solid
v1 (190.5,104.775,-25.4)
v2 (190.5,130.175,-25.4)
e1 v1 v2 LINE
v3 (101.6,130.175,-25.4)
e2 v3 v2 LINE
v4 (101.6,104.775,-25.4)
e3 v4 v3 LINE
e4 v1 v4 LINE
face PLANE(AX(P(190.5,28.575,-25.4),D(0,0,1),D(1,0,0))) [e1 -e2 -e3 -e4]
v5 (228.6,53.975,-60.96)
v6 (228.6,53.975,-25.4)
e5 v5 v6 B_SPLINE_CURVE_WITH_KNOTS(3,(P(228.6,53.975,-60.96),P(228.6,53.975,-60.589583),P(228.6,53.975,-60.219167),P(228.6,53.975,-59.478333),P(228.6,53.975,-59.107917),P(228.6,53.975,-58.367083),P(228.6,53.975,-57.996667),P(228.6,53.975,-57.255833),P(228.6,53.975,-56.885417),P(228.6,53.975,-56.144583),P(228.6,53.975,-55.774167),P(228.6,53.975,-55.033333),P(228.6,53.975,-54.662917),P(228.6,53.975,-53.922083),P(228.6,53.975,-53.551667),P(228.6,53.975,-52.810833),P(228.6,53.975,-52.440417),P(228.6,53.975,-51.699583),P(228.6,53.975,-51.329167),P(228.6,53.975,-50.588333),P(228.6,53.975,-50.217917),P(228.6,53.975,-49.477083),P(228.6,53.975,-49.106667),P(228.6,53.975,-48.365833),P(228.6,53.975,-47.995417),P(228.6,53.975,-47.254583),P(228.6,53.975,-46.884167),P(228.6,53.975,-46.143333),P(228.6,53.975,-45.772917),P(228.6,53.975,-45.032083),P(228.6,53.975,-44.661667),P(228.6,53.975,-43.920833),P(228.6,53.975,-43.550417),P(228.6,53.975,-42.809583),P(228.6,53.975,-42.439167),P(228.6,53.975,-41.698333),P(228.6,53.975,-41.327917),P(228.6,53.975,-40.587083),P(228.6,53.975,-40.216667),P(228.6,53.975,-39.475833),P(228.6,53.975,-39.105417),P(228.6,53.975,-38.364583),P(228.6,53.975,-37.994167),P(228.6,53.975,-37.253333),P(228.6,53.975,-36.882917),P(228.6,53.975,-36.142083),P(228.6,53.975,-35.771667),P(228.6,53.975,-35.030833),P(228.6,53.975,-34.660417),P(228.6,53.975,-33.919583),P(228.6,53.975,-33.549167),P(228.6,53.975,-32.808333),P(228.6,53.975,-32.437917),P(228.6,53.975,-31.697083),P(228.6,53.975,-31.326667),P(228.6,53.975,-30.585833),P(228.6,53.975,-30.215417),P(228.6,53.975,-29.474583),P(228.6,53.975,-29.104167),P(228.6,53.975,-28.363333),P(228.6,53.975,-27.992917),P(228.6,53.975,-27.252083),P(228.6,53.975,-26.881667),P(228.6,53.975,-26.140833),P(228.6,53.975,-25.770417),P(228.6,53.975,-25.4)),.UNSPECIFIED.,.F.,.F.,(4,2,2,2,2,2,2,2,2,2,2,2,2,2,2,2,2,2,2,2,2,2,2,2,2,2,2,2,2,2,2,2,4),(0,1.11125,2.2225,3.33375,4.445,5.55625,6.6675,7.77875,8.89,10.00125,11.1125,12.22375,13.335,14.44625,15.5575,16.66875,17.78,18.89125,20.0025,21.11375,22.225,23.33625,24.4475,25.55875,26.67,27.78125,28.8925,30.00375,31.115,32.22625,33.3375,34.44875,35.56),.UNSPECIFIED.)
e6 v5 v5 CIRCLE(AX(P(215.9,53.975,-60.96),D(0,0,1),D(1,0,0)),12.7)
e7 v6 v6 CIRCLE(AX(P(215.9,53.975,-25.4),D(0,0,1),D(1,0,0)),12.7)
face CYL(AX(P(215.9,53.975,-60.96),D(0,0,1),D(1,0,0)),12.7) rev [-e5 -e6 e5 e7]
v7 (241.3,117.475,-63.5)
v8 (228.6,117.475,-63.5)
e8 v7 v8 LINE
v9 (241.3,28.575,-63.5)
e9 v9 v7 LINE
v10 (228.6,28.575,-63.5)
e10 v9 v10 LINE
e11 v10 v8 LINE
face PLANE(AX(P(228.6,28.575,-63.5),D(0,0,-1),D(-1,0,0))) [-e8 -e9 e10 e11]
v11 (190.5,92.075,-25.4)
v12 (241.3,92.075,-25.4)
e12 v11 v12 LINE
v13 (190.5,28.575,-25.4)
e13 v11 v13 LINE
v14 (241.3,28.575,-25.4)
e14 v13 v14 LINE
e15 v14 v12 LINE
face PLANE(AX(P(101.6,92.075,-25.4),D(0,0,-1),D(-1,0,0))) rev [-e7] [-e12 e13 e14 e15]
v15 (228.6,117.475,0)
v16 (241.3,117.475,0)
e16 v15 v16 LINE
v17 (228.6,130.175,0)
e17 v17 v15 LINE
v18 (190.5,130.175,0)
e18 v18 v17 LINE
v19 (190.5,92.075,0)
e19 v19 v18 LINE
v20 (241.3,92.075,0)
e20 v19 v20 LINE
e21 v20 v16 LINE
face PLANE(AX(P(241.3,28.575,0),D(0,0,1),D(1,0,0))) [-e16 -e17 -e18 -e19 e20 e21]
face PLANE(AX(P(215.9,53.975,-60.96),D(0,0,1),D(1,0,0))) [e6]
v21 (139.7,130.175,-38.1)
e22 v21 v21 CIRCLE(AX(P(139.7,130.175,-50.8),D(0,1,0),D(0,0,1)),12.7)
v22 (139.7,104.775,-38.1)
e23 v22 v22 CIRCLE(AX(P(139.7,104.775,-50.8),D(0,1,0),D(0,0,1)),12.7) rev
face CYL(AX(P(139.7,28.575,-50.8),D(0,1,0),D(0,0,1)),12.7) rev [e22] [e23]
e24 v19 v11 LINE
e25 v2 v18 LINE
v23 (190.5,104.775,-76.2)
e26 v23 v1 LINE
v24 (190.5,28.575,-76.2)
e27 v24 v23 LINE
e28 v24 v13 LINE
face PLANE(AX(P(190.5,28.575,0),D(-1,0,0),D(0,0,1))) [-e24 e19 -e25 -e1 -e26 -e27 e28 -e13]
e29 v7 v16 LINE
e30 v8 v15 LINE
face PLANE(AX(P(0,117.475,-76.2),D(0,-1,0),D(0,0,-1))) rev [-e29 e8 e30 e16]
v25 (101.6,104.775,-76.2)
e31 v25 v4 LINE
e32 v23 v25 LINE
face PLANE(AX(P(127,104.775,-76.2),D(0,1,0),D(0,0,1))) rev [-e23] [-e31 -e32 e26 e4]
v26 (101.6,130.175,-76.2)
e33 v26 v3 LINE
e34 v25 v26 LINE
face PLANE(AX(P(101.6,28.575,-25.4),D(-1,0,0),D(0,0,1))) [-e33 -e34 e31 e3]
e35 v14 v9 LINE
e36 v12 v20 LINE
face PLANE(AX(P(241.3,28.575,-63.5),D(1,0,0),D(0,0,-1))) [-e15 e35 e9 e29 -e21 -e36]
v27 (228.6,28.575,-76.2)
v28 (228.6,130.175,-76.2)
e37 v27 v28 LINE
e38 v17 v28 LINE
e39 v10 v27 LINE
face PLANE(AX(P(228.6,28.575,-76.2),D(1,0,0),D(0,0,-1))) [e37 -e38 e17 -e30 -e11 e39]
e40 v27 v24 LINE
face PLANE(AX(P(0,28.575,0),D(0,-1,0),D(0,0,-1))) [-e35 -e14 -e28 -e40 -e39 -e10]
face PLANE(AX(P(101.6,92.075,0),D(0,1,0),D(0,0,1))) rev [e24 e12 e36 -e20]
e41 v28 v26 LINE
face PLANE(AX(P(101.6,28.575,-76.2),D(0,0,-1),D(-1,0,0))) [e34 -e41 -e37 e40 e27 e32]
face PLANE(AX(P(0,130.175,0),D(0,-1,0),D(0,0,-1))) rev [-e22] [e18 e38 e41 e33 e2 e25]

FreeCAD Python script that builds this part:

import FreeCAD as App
import Part
import Sketcher
from FreeCAD import Vector
Q = App.Units.Quantity

doc = App.newDocument("Part")
body = doc.addObject("PartDesign::Body", "Body")

sketch1 = doc.addObject("Sketcher::SketchObject", "Sketch")
body.addObject(sketch1)
sketch1.AttachmentSupport = (doc.XZ_Plane, [""])
sketch1.MapMode = "FlatFace"
sketch1.AttachmentOffset = App.Placement(Vector(0, 0, -5.125 * 25.4), App.Rotation())
sketch1.addGeometry(Part.LineSegment(Vector(190, 0, 0), Vector(241, 0, 0)), False)
sketch1.addGeometry(Part.LineSegment(Vector(241, 0, 0), Vector(241, -64, 0)), False)
sketch1.addGeometry(Part.LineSegment(Vector(241, -64, 0), Vector(229, -64, 0)), False)
sketch1.addGeometry(Part.LineSegment(Vector(229, -64, 0), Vector(229, -76, 0)), False)
sketch1.addGeometry(Part.LineSegment(Vector(229, -76, 0), Vector(102, -76, 0)), False)
sketch1.addGeometry(Part.LineSegment(Vector(102, -76, 0), Vector(102, -25, 0)), False)
sketch1.addGeometry(Part.LineSegment(Vector(102, -25, 0), Vector(190, -25, 0)), False)
sketch1.addGeometry(Part.LineSegment(Vector(190, -25, 0), Vector(190, 0, 0)), False)
sketch1.addConstraint(Sketcher.Constraint("Coincident", 0, 2, 1, 1))
sketch1.addConstraint(Sketcher.Constraint("Coincident", 1, 2, 2, 1))
sketch1.addConstraint(Sketcher.Constraint("Coincident", 2, 2, 3, 1))
sketch1.addConstraint(Sketcher.Constraint("Coincident", 3, 2, 4, 1))
sketch1.addConstraint(Sketcher.Constraint("Coincident", 4, 2, 5, 1))
sketch1.addConstraint(Sketcher.Constraint("Coincident", 5, 2, 6, 1))
sketch1.addConstraint(Sketcher.Constraint("Coincident", 6, 2, 7, 1))
sketch1.addConstraint(Sketcher.Constraint("Coincident", 7, 2, 0, 1))
sketch1.addConstraint(Sketcher.Constraint("Horizontal", 0))
sketch1.addConstraint(Sketcher.Constraint("Vertical", 1))
sketch1.addConstraint(Sketcher.Constraint("Horizontal", 2))
sketch1.addConstraint(Sketcher.Constraint("Vertical", 3))
sketch1.addConstraint(Sketcher.Constraint("Horizontal", 4))
sketch1.addConstraint(Sketcher.Constraint("Vertical", 5))
sketch1.addConstraint(Sketcher.Constraint("Horizontal", 6))
sketch1.addConstraint(Sketcher.Constraint("Vertical", 7))
sketch1.addConstraint(Sketcher.Constraint("PointOnObject", 0, 2, -1))
sketch1.addConstraint(Sketcher.Constraint("Equal", 2, 3))
sketch1.addConstraint(Sketcher.Constraint("Equal", 0, 5))
sketch1.addConstraint(Sketcher.Constraint("DistanceX", 0, 1, 0, 2, Q("2 in")))
sketch1.addConstraint(Sketcher.Constraint("DistanceX", 4, 2, 4, 1, Q("5 in")))
sketch1.addConstraint(Sketcher.Constraint("DistanceY", 7, 1, 7, 2, Q("1 in")))
sketch1.addConstraint(Sketcher.Constraint("DistanceX", 2, 2, 2, 1, Q("0.5 in")))
sketch1.addConstraint(Sketcher.Constraint("DistanceX", -1, 1, 2, 2, Q("9 in")))
pad1 = doc.addObject("PartDesign::Pad", "Pad")
body.addObject(pad1)
pad1.Profile = sketch1
pad1.Length = Q("4 in")

sketch2 = doc.addObject("Sketcher::SketchObject", "Sketch001")
body.addObject(sketch2)
sketch2.AttachmentSupport = (doc.XZ_Plane, [""])
sketch2.MapMode = "FlatFace"
sketch2.AttachmentOffset = App.Placement(Vector(0, 0, -5.125 * 25.4), App.Rotation())
sketch2.addGeometry(Part.Circle(Vector(140, -51, 0), Vector(0, 0, 1), 13), False)
sketch2.addConstraint(Sketcher.Constraint("Diameter", 0, Q("1 in")))
sketch2.addConstraint(Sketcher.Constraint("DistanceY", 0, 3, -1, 1, Q("2 in")))
sketch2.addConstraint(Sketcher.Constraint("DistanceX", -1, 1, 0, 3, Q("5.5 in")))
pocket1 = doc.addObject("PartDesign::Pocket", "Pocket")
body.addObject(pocket1)
pocket1.Profile = sketch2
pocket1.Type = "ThroughAll"
pocket1.Reversed = True

sketch3 = doc.addObject("Sketcher::SketchObject", "Sketch002")
body.addObject(sketch3)
sketch3.AttachmentSupport = (doc.XY_Plane, [""])
sketch3.MapMode = "FlatFace"
sketch3.addGeometry(Part.LineSegment(Vector(190, 105, 0), Vector(102, 105, 0)), False)
sketch3.addGeometry(Part.LineSegment(Vector(102, 105, 0), Vector(102, 29, 0)), False)
sketch3.addGeometry(Part.LineSegment(Vector(102, 29, 0), Vector(190, 29, 0)), False)
sketch3.addGeometry(Part.LineSegment(Vector(190, 29, 0), Vector(190, 105, 0)), False)
sketch3.addConstraint(Sketcher.Constraint("Coincident", 0, 2, 1, 1))
sketch3.addConstraint(Sketcher.Constraint("Coincident", 1, 2, 2, 1))
sketch3.addConstraint(Sketcher.Constraint("Coincident", 2, 2, 3, 1))
sketch3.addConstraint(Sketcher.Constraint("Coincident", 3, 2, 0, 1))
sketch3.addConstraint(Sketcher.Constraint("Horizontal", 0))
sketch3.addConstraint(Sketcher.Constraint("Vertical", 1))
sketch3.addConstraint(Sketcher.Constraint("Horizontal", 2))
sketch3.addConstraint(Sketcher.Constraint("Vertical", 3))
sketch3.addConstraint(Sketcher.Constraint("DistanceY", 1, 2, 1, 1, Q("3 in")))
sketch3.addConstraint(Sketcher.Constraint("DistanceX", 0, 2, 0, 1, Q("3.5 in")))
sketch3.addConstraint(Sketcher.Constraint("DistanceX", -1, 1, 0, 2, Q("4 in")))
sketch3.addConstraint(Sketcher.Constraint("DistanceY", -1, 1, 0, 2, Q("4.125 in")))
pocket2 = doc.addObject("PartDesign::Pocket", "Pocket001")
body.addObject(pocket2)
pocket2.Profile = sketch3
pocket2.Type = "ThroughAll"

sketch4 = doc.addObject("Sketcher::SketchObject", "Sketch003")
body.addObject(sketch4)
sketch4.AttachmentSupport = (doc.XY_Plane, [""])
sketch4.MapMode = "FlatFace"
sketch4.addGeometry(Part.LineSegment(Vector(229, 130, 0), Vector(229, 117, 0)), False)
sketch4.addGeometry(Part.LineSegment(Vector(229, 117, 0), Vector(241, 117, 0)), False)
sketch4.addGeometry(Part.LineSegment(Vector(241, 117, 0), Vector(241, 130, 0)), False)
sketch4.addGeometry(Part.LineSegment(Vector(241, 130, 0), Vector(229, 130, 0)), False)
sketch4.addConstraint(Sketcher.Constraint("Coincident", 0, 2, 1, 1))
sketch4.addConstraint(Sketcher.Constraint("Coincident", 1, 2, 2, 1))
sketch4.addConstraint(Sketcher.Constraint("Coincident", 2, 2, 3, 1))
sketch4.addConstraint(Sketcher.Constraint("Coincident", 3, 2, 0, 1))
sketch4.addConstraint(Sketcher.Constraint("Vertical", 0))
sketch4.addConstraint(Sketcher.Constraint("Horizontal", 1))
sketch4.addConstraint(Sketcher.Constraint("Vertical", 2))
sketch4.addConstraint(Sketcher.Constraint("Horizontal", 3))
sketch4.addConstraint(Sketcher.Constraint("Equal", 3, 0))
sketch4.addConstraint(Sketcher.Constraint("DistanceX", 1, 1, 1, 2, Q("0.5 in")))
sketch4.addConstraint(Sketcher.Constraint("DistanceX", -1, 1, 0, 2, Q("9 in")))
sketch4.addConstraint(Sketcher.Constraint("DistanceY", -1, 1, 0, 2, Q("4.625 in")))
pocket3 = doc.addObject("PartDesign::Pocket", "Pocket002")
body.addObject(pocket3)
pocket3.Profile = sketch4
pocket3.Type = "ThroughAll"

sketch5 = doc.addObject("Sketcher::SketchObject", "Sketch004")
body.addObject(sketch5)
sketch5.AttachmentSupport = (doc.YZ_Plane, [""])
sketch5.MapMode = "FlatFace"
sketch5.AttachmentOffset = App.Placement(Vector(0, 0, 9.5 * 25.4), App.Rotation())
sketch5.addGeometry(Part.LineSegment(Vector(92, 0, 0), Vector(29, 0, 0)), False)
sketch5.addGeometry(Part.LineSegment(Vector(29, 0, 0), Vector(29, -25, 0)), False)
sketch5.addGeometry(Part.LineSegment(Vector(29, -25, 0), Vector(92, -25, 0)), False)
sketch5.addGeometry(Part.LineSegment(Vector(92, -25, 0), Vector(92, 0, 0)), False)
sketch5.addConstraint(Sketcher.Constraint("Coincident", 0, 2, 1, 1))
sketch5.addConstraint(Sketcher.Constraint("Coincident", 1, 2, 2, 1))
sketch5.addConstraint(Sketcher.Constraint("Coincident", 2, 2, 3, 1))
sketch5.addConstraint(Sketcher.Constraint("Coincident", 3, 2, 0, 1))
sketch5.addConstraint(Sketcher.Constraint("Horizontal", 0))
sketch5.addConstraint(Sketcher.Constraint("Vertical", 1))
sketch5.addConstraint(Sketcher.Constraint("Horizontal", 2))
sketch5.addConstraint(Sketcher.Constraint("Vertical", 3))
sketch5.addConstraint(Sketcher.Constraint("PointOnObject", 0, 2, -1))
sketch5.addConstraint(Sketcher.Constraint("DistanceY", 1, 2, 1, 1, Q("1 in")))
sketch5.addConstraint(Sketcher.Constraint("DistanceX", 0, 2, 0, 1, Q("2.5 in")))
sketch5.addConstraint(Sketcher.Constraint("DistanceX", -1, 1, 0, 2, Q("1.125 in")))
pocket4 = doc.addObject("PartDesign::Pocket", "Pocket003")
body.addObject(pocket4)
pocket4.Profile = sketch5
pocket4.Type = "ThroughAll"

sketch6 = doc.addObject("Sketcher::SketchObject", "Sketch005")
body.addObject(sketch6)
sketch6.AttachmentSupport = (doc.XY_Plane, [""])
sketch6.MapMode = "FlatFace"
sketch6.AttachmentOffset = App.Placement(Vector(0, 0, -1 * 25.4), App.Rotation())
sketch6.addGeometry(Part.Circle(Vector(216, 54, 0), Vector(0, 0, 1), 13), False)
sketch6.addConstraint(Sketcher.Constraint("Diameter", 0, Q("1 in")))
sketch6.addConstraint(Sketcher.Constraint("DistanceX", -1, 1, 0, 3, Q("8.5 in")))
sketch6.addConstraint(Sketcher.Constraint("DistanceY", -1, 1, 0, 3, Q("2.125 in")))
pocket5 = doc.addObject("PartDesign::Pocket", "Pocket004")
body.addObject(pocket5)
pocket5.Profile = sketch6
pocket5.Length = Q("1.4 in")

doc.recompute()
